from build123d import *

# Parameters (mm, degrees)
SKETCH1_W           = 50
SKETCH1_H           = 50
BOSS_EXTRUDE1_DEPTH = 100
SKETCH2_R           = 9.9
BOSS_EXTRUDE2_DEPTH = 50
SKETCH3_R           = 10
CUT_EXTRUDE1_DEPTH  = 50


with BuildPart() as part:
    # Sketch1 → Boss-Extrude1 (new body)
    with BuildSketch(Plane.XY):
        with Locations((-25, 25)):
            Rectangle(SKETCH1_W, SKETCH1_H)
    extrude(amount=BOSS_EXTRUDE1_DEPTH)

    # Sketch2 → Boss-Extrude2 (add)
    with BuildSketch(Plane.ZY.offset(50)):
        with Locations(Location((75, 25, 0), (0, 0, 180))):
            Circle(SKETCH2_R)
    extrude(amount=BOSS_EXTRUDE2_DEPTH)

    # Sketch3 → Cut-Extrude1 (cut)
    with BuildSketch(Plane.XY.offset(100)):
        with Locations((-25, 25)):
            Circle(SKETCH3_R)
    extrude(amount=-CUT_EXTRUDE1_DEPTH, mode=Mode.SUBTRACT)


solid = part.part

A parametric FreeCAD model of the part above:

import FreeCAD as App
import Part
import Sketcher


def add_polygon(sketch, points):
    """Adds a closed chain of lines whose ends are joined by coincident constraints."""
    first, n = sketch.GeometryCount, len(points)
    for a, b in zip(points, points[1:] + points[:1]):
        sketch.addGeometry(Part.LineSegment(App.Vector(*a, 0), App.Vector(*b, 0)), False)
    for i in range(n):
        sketch.addConstraint(Sketcher.Constraint("Coincident", first + i, 2, first + (i + 1) % n, 1))

doc = App.newDocument("Part")
body = doc.addObject("PartDesign::Body", "Body")

# Sketch on XY plane
sketch1 = body.newObject("Sketcher::SketchObject", "Sketch")
sketch1.AttachmentSupport = (doc.getObject("XY_Plane"), [""])
sketch1.MapMode = "FlatFace"
add_polygon(sketch1, [(-50, 50), (-50, 0), (0, 0), (0, 50)])  # lines 0-3
sketch1.addConstraint(Sketcher.Constraint("Vertical", 0))
sketch1.addConstraint(Sketcher.Constraint("Horizontal", 1))
sketch1.addConstraint(Sketcher.Constraint("Vertical", 2))
sketch1.addConstraint(Sketcher.Constraint("Horizontal", 3))
sketch1.addConstraint(Sketcher.Constraint("Coincident", 1, 2, -1, 1))
sketch1.addConstraint(Sketcher.Constraint("Equal", 3, 0))
sketch1.addConstraint(Sketcher.Constraint("DistanceX", 1, 1, 1, 2, 50.0))
pad1 = body.newObject("PartDesign::Pad", "Pad")
pad1.Profile = sketch1
pad1.Length = 100

# Sketch on YZ plane
sketch2 = body.newObject("Sketcher::SketchObject", "Sketch001")
sketch2.AttachmentSupport = (doc.getObject("YZ_Plane"), [""])
sketch2.MapMode = "FlatFace"
sketch2.AttachmentOffset = App.Placement(App.Vector(0, 0, -50), App.Rotation())
sketch2.addGeometry(Part.Circle(App.Vector(25, 75, 0), App.Vector(0, 0, 1), 10), False)
sketch2.addConstraint(Sketcher.Constraint("Diameter", 0, 19.8))
sketch2.addConstraint(Sketcher.Constraint("DistanceX", -1, 1, 0, 3, 25.0))
sketch2.addConstraint(Sketcher.Constraint("DistanceY", -1, 1, 0, 3, 75.0))
pad2 = body.newObject("PartDesign::Pad", "Pad001")
pad2.Profile = sketch2
pad2.Length = 50
pad2.Reversed = True

# Sketch on XY plane
sketch3 = body.newObject("Sketcher::SketchObject", "Sketch002")
sketch3.AttachmentSupport = (doc.getObject("XY_Plane"), [""])
sketch3.MapMode = "FlatFace"
sketch3.AttachmentOffset = App.Placement(App.Vector(0, 0, 100), App.Rotation())
sketch3.addGeometry(Part.Circle(App.Vector(-25, 25, 0), App.Vector(0, 0, 1), 10), False)
sketch3.addConstraint(Sketcher.Constraint("Diameter", 0, 20.0))
sketch3.addConstraint(Sketcher.Constraint("DistanceX", 0, 3, -1, 1, 25.0))
sketch3.addConstraint(Sketcher.Constraint("DistanceY", -1, 1, 0, 3, 25.0))
pocket1 = body.newObject("PartDesign::Pocket", "Pocket")
pocket1.Profile = sketch3
pocket1.Length = 50

doc.recompute()
